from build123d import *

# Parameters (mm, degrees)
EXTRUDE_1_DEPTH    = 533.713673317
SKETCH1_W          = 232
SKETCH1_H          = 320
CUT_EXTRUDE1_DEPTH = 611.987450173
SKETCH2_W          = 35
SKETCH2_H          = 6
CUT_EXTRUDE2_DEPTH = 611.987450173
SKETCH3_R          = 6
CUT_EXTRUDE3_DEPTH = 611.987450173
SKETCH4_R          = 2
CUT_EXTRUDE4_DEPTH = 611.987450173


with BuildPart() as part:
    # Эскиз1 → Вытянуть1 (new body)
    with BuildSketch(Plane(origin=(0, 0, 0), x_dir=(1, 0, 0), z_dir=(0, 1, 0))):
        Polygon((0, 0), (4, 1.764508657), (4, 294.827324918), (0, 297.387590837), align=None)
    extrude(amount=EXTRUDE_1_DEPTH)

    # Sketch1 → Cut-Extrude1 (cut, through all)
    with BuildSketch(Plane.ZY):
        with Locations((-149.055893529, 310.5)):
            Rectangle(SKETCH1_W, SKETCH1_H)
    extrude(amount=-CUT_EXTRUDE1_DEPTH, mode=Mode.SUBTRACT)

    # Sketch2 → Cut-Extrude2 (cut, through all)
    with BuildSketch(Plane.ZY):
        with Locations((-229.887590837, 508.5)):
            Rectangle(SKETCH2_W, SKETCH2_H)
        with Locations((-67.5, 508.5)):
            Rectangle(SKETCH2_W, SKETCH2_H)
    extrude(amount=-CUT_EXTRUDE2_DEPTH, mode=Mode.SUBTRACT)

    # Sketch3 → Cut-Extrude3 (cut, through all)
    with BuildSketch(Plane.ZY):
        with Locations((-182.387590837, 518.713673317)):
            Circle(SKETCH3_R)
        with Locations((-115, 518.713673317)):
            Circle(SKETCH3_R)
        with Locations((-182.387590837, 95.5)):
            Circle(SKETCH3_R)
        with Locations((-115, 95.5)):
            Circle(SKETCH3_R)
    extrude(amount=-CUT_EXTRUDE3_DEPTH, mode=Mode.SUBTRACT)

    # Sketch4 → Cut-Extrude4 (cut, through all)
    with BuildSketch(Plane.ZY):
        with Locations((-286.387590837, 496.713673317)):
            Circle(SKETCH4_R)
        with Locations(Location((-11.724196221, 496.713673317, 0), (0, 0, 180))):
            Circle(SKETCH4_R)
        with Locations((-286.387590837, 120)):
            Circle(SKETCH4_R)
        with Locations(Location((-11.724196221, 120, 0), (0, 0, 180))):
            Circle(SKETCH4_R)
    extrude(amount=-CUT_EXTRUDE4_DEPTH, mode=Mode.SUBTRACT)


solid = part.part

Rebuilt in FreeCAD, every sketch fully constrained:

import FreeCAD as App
import Part
import Sketcher

V = App.Vector
Q = App.Units.Quantity


def add_polygon(sketch, points):
    """Adds a closed chain of lines whose ends are joined by coincident constraints."""
    first, n = sketch.GeometryCount, len(points)
    for a, b in zip(points, points[1:] + points[:1]):
        sketch.addGeometry(Part.LineSegment(App.Vector(*a, 0), App.Vector(*b, 0)), False)
    for i in range(n):
        sketch.addConstraint(Sketcher.Constraint("Coincident", first + i, 2, first + (i + 1) % n, 1))

doc = App.newDocument("Part")
body = doc.addObject("PartDesign::Body", "Body")

sketch1 = doc.addObject("Sketcher::SketchObject", "Sketch")
body.addObject(sketch1)
sketch1.AttachmentSupport = (doc.XZ_Plane, [""])
sketch1.MapMode = "FlatFace"
add_polygon(sketch1, [(0, 0), (4, -1.8), (4, -294.8), (0, -297.4)])
sketch1.addConstraint([
    Sketcher.Constraint("Vertical", 1),
    Sketcher.Constraint("Vertical", 3),
    Sketcher.Constraint("Coincident", 3, 2, -1, 1),
    Sketcher.Constraint("DistanceX", -1, 1, 0, 2, Q("4 mm")),
    Sketcher.Constraint("DistanceY", 3, 1, 3, 2, Q("297.387591 mm")),
    Sketcher.Constraint("DistanceY", 1, 2, 1, 1, Q("293.062816 mm")),
    Sketcher.Constraint("DistanceY", 0, 2, -1, 1, Q("1.764509 mm")),
])
pad1 = doc.addObject("PartDesign::Pad", "Pad")
body.addObject(pad1)
pad1.Profile = sketch1
pad1.Length = 533.713673
pad1.Reversed = True

sketch2 = doc.addObject("Sketcher::SketchObject", "Sketch001")
body.addObject(sketch2)
sketch2.AttachmentSupport = (doc.YZ_Plane, [""])
sketch2.MapMode = "FlatFace"
add_polygon(sketch2, [(470, -265), (150, -265), (150, -33), (470, -33)])
sketch2.addConstraint([
    Sketcher.Constraint("Horizontal", 0),
    Sketcher.Constraint("Vertical", 1),
    Sketcher.Constraint("Horizontal", 2),
    Sketcher.Constraint("Vertical", 3),
    Sketcher.Constraint("DistanceX", 0, 2, 0, 1, Q("320 mm")),
    Sketcher.Constraint("DistanceY", 1, 1, 1, 2, Q("232 mm")),
    Sketcher.Constraint("DistanceX", -1, 1, 0, 2, Q("150.5 mm")),
    Sketcher.Constraint("DistanceY", 0, 2, -1, 1, Q("265.055894 mm")),
])
pocket1 = doc.addObject("PartDesign::Pocket", "Pocket")
body.addObject(pocket1)
pocket1.Profile = sketch2
pocket1.Type = "ThroughAll"
pocket1.Reversed = True

sketch3 = doc.addObject("Sketcher::SketchObject", "Sketch002")
body.addObject(sketch3)
sketch3.AttachmentSupport = (doc.YZ_Plane, [""])
sketch3.MapMode = "FlatFace"
add_polygon(sketch3, [(512, -247), (506, -247), (506, -212), (512, -212)])
add_polygon(sketch3, [(512, -85), (506, -85), (506, -50), (512, -50)])
sketch3.addConstraint([
    Sketcher.Constraint("Horizontal", 0),
    Sketcher.Constraint("Vertical", 1),
    Sketcher.Constraint("Horizontal", 2),
    Sketcher.Constraint("Vertical", 3),
    Sketcher.Constraint("Horizontal", 4),
    Sketcher.Constraint("Vertical", 5),
    Sketcher.Constraint("Horizontal", 6),
    Sketcher.Constraint("Vertical", 7),
    Sketcher.Constraint("Vertical", 1, 2, 4, 2),
    Sketcher.Constraint("Vertical", 3, 2, 6, 2),
    Sketcher.Constraint("Equal", 3, 5),
    Sketcher.Constraint("DistanceX", 0, 2, 0, 1, Q("6 mm")),
    Sketcher.Constraint("DistanceY", 1, 1, 1, 2, Q("35 mm")),
    Sketcher.Constraint("DistanceY", 4, 2, -1, 1, Q("85 mm")),
    Sketcher.Constraint("DistanceX", -1, 1, 0, 2, Q("505.5 mm")),
    Sketcher.Constraint("DistanceY", 0, 2, -1, 1, Q("247.387591 mm")),
])
pocket2 = doc.addObject("PartDesign::Pocket", "Pocket001")
body.addObject(pocket2)
pocket2.Profile = sketch3
pocket2.Type = "ThroughAll"
pocket2.Reversed = True

sketch4 = doc.addObject("Sketcher::SketchObject", "Sketch003")
body.addObject(sketch4)
sketch4.AttachmentSupport = (doc.YZ_Plane, [""])
sketch4.MapMode = "FlatFace"
sketch4.addGeometry([
    Part.Circle(V(519, -182, 0), V(0, 0, 1), 6),
    Part.Circle(V(519, -115, 0), V(0, 0, 1), 6),
    Part.Circle(V(96, -182, 0), V(0, 0, 1), 6),
    Part.Circle(V(96, -115, 0), V(0, 0, 1), 6),
], False)
sketch4.addConstraint([
    Sketcher.Constraint("Equal", 0, 1),
    Sketcher.Constraint("Equal", 1, 2),
    Sketcher.Constraint("Equal", 2, 3),
    Sketcher.Constraint("Horizontal", 0, 3, 2, 3),
    Sketcher.Constraint("Horizontal", 1, 3, 3, 3),
    Sketcher.Constraint("Vertical", 0, 3, 1, 3),
    Sketcher.Constraint("Vertical", 2, 3, 3, 3),
    Sketcher.Constraint("Diameter", 0, Q("12 mm")),
    Sketcher.Constraint("DistanceY", 1, 3, -1, 1, Q("115 mm")),
    Sketcher.Constraint("DistanceX", -1, 1, 2, 3, Q("95.5 mm")),
    Sketcher.Constraint("DistanceY", 0, 3, -1, 1, Q("182.387591 mm")),
    Sketcher.Constraint("DistanceX", -1, 1, 0, 3, Q("518.713673 mm")),
])
pocket3 = doc.addObject("PartDesign::Pocket", "Pocket002")
body.addObject(pocket3)
pocket3.Profile = sketch4
pocket3.Type = "ThroughAll"
pocket3.Reversed = True

sketch5 = doc.addObject("Sketcher::SketchObject", "Sketch004")
body.addObject(sketch5)
sketch5.AttachmentSupport = (doc.YZ_Plane, [""])
sketch5.MapMode = "FlatFace"
sketch5.addGeometry([
    Part.Circle(V(496.7, -286.4, 0), V(0, 0, 1), 2),
    Part.Circle(V(496.7, -11.7, 0), V(0, 0, 1), 2),
    Part.Circle(V(120, -286.4, 0), V(0, 0, 1), 2),
    Part.Circle(V(120, -11.7, 0), V(0, 0, 1), 2),
], False)
sketch5.addConstraint([
    Sketcher.Constraint("Equal", 0, 1),
    Sketcher.Constraint("Equal", 1, 2),
    Sketcher.Constraint("Equal", 2, 3),
    Sketcher.Constraint("Horizontal", 0, 3, 2, 3),
    Sketcher.Constraint("Horizontal", 1, 3, 3, 3),
    Sketcher.Constraint("Vertical", 0, 3, 1, 3),
    Sketcher.Constraint("Vertical", 2, 3, 3, 3),
    Sketcher.Constraint("Diameter", 0, Q("4 mm")),
    Sketcher.Constraint("DistanceX", -1, 1, 2, 3, Q("120 mm")),
    Sketcher.Constraint("DistanceY", 0, 3, -1, 1, Q("286.387591 mm")),
    Sketcher.Constraint("DistanceX", -1, 1, 0, 3, Q("496.713673 mm")),
    Sketcher.Constraint("DistanceY", 1, 3, -1, 1, Q("11.724196 mm")),
])
pocket4 = doc.addObject("PartDesign::Pocket", "Pocket003")
body.addObject(pocket4)
pocket4.Profile = sketch5
pocket4.Type = "ThroughAll"
pocket4.Reversed = True

doc.recompute()
